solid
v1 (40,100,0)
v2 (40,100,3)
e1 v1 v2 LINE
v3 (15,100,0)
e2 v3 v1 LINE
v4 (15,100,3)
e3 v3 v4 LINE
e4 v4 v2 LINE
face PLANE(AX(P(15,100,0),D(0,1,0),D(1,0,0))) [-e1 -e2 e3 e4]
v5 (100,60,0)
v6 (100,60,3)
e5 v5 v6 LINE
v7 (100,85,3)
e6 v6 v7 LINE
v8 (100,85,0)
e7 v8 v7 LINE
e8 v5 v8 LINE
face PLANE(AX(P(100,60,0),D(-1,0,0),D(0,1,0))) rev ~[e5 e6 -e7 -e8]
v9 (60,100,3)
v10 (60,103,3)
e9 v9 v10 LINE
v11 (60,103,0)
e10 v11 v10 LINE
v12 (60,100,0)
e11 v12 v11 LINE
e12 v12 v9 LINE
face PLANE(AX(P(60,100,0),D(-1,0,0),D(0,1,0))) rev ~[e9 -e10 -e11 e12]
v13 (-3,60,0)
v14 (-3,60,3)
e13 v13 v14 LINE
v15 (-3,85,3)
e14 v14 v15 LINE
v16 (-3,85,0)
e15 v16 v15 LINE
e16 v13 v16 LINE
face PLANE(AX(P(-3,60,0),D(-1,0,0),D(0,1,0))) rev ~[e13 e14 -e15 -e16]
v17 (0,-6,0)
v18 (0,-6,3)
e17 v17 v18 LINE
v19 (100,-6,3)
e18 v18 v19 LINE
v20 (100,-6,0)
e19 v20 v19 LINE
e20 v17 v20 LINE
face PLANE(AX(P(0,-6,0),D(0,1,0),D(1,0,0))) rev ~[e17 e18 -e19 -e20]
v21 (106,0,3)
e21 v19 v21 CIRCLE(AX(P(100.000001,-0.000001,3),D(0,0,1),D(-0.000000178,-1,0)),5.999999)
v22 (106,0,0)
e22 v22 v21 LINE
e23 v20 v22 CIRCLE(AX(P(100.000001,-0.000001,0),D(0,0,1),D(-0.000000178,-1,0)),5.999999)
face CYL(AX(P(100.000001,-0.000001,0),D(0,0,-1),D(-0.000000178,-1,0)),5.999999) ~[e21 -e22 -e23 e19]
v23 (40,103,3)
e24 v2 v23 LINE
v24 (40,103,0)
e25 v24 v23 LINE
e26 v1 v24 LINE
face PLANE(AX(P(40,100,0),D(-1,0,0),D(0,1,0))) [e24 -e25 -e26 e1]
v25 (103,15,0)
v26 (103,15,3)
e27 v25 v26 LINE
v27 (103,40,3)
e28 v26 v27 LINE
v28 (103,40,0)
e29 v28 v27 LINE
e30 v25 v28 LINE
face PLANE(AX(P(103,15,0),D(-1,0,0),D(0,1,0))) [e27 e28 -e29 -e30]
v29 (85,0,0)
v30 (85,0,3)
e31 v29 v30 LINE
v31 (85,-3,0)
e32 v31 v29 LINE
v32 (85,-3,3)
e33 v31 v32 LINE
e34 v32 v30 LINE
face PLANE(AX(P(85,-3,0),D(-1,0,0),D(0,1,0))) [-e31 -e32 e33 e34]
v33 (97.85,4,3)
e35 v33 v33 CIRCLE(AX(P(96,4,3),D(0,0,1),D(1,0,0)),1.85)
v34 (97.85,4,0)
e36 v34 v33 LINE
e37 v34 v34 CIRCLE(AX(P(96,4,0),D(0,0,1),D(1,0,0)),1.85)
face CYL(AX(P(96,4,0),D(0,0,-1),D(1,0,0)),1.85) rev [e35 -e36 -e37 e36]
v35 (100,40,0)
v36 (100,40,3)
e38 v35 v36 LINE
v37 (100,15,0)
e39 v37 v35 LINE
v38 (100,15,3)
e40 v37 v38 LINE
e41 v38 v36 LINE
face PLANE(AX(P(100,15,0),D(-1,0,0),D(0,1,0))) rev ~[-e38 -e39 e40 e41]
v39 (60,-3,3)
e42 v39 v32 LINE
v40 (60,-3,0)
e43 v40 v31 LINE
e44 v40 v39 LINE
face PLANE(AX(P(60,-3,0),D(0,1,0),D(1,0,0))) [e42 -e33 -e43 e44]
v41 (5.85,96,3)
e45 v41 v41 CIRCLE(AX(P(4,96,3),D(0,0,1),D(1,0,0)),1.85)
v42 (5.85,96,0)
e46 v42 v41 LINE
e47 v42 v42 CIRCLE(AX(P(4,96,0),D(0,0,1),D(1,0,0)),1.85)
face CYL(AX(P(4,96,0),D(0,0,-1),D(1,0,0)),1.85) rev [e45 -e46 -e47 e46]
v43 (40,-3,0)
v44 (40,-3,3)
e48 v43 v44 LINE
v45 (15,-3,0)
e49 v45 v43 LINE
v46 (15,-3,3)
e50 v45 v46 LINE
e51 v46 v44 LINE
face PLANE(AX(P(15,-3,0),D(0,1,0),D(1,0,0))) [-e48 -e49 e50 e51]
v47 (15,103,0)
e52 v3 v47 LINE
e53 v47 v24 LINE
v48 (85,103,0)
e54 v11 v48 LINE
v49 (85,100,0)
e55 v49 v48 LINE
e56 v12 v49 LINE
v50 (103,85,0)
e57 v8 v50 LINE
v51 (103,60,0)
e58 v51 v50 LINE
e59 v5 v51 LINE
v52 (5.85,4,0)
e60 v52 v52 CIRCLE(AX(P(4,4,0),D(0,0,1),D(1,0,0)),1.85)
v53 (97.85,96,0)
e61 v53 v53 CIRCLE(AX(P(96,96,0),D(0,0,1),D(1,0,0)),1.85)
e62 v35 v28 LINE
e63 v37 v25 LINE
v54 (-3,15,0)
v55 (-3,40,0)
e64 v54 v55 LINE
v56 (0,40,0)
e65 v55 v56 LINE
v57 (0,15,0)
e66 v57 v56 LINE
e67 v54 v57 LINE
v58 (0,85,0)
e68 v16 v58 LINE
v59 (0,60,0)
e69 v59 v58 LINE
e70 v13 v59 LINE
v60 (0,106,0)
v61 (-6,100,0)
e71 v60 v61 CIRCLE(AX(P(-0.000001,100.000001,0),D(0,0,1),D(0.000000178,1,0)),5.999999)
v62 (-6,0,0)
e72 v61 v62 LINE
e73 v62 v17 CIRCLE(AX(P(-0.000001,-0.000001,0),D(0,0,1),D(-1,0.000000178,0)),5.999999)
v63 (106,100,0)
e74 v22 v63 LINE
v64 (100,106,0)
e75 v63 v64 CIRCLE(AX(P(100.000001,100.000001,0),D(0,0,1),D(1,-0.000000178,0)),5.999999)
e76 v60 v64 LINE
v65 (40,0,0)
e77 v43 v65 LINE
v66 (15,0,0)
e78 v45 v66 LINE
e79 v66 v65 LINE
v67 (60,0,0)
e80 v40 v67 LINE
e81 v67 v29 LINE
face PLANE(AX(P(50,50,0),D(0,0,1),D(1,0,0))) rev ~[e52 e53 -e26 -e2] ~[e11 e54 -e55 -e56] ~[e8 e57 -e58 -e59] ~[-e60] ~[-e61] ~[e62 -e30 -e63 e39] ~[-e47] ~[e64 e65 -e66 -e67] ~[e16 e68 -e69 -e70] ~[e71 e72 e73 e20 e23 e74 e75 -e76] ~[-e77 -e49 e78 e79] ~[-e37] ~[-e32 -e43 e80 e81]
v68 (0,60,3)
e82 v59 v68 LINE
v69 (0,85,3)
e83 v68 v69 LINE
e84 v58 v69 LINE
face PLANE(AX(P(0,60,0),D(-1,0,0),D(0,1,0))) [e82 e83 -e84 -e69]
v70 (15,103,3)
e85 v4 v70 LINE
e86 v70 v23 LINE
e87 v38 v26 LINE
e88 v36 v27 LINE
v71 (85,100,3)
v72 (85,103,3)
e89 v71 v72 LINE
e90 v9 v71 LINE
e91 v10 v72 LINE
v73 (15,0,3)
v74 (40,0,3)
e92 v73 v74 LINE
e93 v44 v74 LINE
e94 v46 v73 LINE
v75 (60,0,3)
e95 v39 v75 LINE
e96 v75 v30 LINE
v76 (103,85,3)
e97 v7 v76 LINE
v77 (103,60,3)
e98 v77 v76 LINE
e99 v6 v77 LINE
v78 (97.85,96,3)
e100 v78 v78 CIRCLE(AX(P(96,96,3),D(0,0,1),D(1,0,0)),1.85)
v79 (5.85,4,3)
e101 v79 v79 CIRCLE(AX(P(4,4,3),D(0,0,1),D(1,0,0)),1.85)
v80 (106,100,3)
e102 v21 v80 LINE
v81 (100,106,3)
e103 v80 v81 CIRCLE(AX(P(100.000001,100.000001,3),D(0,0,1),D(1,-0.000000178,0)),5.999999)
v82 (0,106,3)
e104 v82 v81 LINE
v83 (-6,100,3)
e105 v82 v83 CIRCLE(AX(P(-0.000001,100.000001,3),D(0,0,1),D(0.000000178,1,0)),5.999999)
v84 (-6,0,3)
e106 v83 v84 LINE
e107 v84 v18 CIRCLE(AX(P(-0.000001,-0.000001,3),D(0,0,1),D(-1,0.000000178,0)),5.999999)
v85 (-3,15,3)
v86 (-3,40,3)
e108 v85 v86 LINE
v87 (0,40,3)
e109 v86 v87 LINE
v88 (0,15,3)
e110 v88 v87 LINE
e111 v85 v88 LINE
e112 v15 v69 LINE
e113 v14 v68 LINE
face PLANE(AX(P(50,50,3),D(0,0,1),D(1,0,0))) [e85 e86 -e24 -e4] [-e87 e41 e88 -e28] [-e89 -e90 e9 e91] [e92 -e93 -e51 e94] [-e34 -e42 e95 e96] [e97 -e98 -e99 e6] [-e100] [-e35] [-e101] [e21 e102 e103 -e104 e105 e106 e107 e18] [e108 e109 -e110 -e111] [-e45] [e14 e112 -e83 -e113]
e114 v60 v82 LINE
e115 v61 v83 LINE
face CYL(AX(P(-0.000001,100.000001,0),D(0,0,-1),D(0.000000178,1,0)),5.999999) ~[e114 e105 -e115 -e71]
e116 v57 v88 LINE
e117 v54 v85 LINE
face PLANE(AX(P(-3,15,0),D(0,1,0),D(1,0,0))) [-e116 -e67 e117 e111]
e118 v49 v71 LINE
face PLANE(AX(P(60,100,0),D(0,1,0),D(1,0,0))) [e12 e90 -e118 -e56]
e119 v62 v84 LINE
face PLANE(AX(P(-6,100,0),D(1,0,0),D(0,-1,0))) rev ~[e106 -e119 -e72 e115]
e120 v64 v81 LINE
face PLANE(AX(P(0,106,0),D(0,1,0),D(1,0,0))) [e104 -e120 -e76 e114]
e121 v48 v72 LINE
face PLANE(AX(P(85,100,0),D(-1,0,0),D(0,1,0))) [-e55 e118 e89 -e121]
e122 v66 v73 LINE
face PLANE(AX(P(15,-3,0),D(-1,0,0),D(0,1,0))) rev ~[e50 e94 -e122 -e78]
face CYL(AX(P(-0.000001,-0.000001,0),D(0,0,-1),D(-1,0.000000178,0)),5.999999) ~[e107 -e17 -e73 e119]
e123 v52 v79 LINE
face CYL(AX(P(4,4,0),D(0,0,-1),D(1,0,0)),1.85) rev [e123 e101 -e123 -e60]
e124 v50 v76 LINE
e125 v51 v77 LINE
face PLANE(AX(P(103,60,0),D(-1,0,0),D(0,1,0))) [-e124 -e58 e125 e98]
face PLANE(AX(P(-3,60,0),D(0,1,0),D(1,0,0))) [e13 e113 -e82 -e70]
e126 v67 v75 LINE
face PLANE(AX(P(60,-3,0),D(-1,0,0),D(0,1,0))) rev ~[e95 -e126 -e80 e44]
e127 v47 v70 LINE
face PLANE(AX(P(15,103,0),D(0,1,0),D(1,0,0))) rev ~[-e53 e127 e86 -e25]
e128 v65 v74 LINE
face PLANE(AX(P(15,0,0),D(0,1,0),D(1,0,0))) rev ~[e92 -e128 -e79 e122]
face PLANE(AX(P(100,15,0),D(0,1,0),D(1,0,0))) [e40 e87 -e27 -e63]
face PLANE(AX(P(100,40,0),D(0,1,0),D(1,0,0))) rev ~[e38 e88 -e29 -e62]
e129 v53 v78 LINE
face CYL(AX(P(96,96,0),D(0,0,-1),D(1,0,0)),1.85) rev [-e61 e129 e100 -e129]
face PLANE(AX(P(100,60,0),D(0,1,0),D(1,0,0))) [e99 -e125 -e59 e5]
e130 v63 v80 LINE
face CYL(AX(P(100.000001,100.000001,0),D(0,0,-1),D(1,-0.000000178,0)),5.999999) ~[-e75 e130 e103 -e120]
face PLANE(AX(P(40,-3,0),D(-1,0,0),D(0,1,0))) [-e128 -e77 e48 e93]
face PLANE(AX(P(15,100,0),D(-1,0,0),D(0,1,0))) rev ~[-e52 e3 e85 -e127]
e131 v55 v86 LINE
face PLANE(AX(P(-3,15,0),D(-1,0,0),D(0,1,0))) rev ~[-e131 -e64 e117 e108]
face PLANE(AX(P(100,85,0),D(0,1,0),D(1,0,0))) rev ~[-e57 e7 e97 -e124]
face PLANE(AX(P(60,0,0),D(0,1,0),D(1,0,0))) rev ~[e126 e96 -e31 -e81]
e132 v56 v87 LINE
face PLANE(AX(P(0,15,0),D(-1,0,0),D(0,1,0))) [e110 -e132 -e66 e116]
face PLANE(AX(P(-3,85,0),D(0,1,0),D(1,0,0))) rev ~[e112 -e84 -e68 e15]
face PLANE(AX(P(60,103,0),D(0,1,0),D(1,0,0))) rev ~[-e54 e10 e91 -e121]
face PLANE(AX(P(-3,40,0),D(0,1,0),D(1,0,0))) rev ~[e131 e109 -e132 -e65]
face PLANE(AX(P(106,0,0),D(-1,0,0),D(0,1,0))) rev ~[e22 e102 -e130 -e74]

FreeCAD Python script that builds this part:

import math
import FreeCAD as App
import Part
import Sketcher
from FreeCAD import Vector


def add_polygon(sketch, points):
    """Adds a closed chain of lines whose ends are joined by coincident constraints."""
    first, n = sketch.GeometryCount, len(points)
    for a, b in zip(points, points[1:] + points[:1]):
        sketch.addGeometry(Part.LineSegment(App.Vector(*a, 0), App.Vector(*b, 0)), False)
    for i in range(n):
        sketch.addConstraint(Sketcher.Constraint("Coincident", first + i, 2, first + (i + 1) % n, 1))

doc = App.newDocument("Part")
body = doc.addObject("PartDesign::Body", "Body")

# Sketch on XY plane
sketch1 = body.newObject("Sketcher::SketchObject", "Sketch")
sketch1.AttachmentSupport = (doc.getObject("XY_Plane"), [""])
sketch1.MapMode = "FlatFace"
sketch1.addGeometry(Part.ArcOfCircle(Part.Circle(Vector(-0.000001, 100.000001, 0), Vector(0, 0, 1), 5.999999), math.radians(89.99999), math.radians(180.00001)), False)  # 0
sketch1.addGeometry(Part.LineSegment(Vector(-6, 100, 0), Vector(-6, 0, 0)), False)  # 1
sketch1.addGeometry(Part.ArcOfCircle(Part.Circle(Vector(-0.000001, -0.000001, 0), Vector(0, 0, 1), 5.999999), math.radians(179.99999), math.radians(270.00001)), False)  # 2
sketch1.addGeometry(Part.LineSegment(Vector(0, -6, 0), Vector(100, -6, 0)), False)  # 3
sketch1.addGeometry(Part.ArcOfCircle(Part.Circle(Vector(100.000001, -0.000001, 0), Vector(0, 0, 1), 5.999999), math.radians(-90.00001), math.radians(0.00001)), False)  # 4
sketch1.addGeometry(Part.LineSegment(Vector(106, 0, 0), Vector(106, 100, 0)), False)  # 5
sketch1.addGeometry(Part.ArcOfCircle(Part.Circle(Vector(100.000001, 100.000001, 0), Vector(0, 0, 1), 5.999999), math.radians(-0.00001), math.radians(90.00001)), False)  # 6
sketch1.addGeometry(Part.LineSegment(Vector(100, 106, 0), Vector(0, 106, 0)), False)  # 7
sketch1.addGeometry(Part.Circle(Vector(4, 4, 0), Vector(0, 0, 1), 1.85), False)  # 8
add_polygon(sketch1, [(40, -3), (15, -3), (15, 0), (40, 0)])  # lines 9-12
add_polygon(sketch1, [(0, 15), (-3, 15), (-3, 40), (0, 40)])  # lines 13-16
add_polygon(sketch1, [(85, -3), (60, -3), (60, 0), (85, 0)])  # lines 17-20
sketch1.addGeometry(Part.Circle(Vector(96, 4, 0), Vector(0, 0, 1), 1.85), False)  # 21
add_polygon(sketch1, [(103, 15), (100, 15), (100, 40), (103, 40)])  # lines 22-25
add_polygon(sketch1, [(0, 60), (-3, 60), (-3, 85), (0, 85)])  # lines 26-29
sketch1.addGeometry(Part.Circle(Vector(4, 96, 0), Vector(0, 0, 1), 1.85), False)  # 30
add_polygon(sketch1, [(40, 100), (15, 100), (15, 103), (40, 103)])  # lines 31-34
add_polygon(sketch1, [(103, 60), (100, 60), (100, 85), (103, 85)])  # lines 35-38
add_polygon(sketch1, [(85, 100), (60, 100), (60, 103), (85, 103)])  # lines 39-42
sketch1.addGeometry(Part.Circle(Vector(96, 96, 0), Vector(0, 0, 1), 1.85), False)  # 43
sketch1.addConstraint(Sketcher.Constraint("Tangent", 0, 2, 1, 1))
sketch1.addConstraint(Sketcher.Constraint("Tangent", 1, 2, 2, 1))
sketch1.addConstraint(Sketcher.Constraint("Tangent", 2, 2, 3, 1))
sketch1.addConstraint(Sketcher.Constraint("Tangent", 3, 2, 4, 1))
sketch1.addConstraint(Sketcher.Constraint("Tangent", 4, 2, 5, 1))
sketch1.addConstraint(Sketcher.Constraint("Tangent", 5, 2, 6, 1))
sketch1.addConstraint(Sketcher.Constraint("Tangent", 6, 2, 7, 1))
sketch1.addConstraint(Sketcher.Constraint("Tangent", 7, 2, 0, 1))
sketch1.addConstraint(Sketcher.Constraint("Vertical", 1))
sketch1.addConstraint(Sketcher.Constraint("Horizontal", 3))
sketch1.addConstraint(Sketcher.Constraint("Vertical", 5))
sketch1.addConstraint(Sketcher.Constraint("Horizontal", 7))
sketch1.addConstraint(Sketcher.Constraint("Horizontal", 9))
sketch1.addConstraint(Sketcher.Constraint("Vertical", 10))
sketch1.addConstraint(Sketcher.Constraint("Horizontal", 11))
sketch1.addConstraint(Sketcher.Constraint("Vertical", 12))
sketch1.addConstraint(Sketcher.Constraint("Horizontal", 13))
sketch1.addConstraint(Sketcher.Constraint("Vertical", 14))
sketch1.addConstraint(Sketcher.Constraint("Horizontal", 15))
sketch1.addConstraint(Sketcher.Constraint("Vertical", 16))
sketch1.addConstraint(Sketcher.Constraint("Horizontal", 17))
sketch1.addConstraint(Sketcher.Constraint("Vertical", 18))
sketch1.addConstraint(Sketcher.Constraint("Horizontal", 19))
sketch1.addConstraint(Sketcher.Constraint("Vertical", 20))
sketch1.addConstraint(Sketcher.Constraint("Horizontal", 22))
sketch1.addConstraint(Sketcher.Constraint("Vertical", 23))
sketch1.addConstraint(Sketcher.Constraint("Horizontal", 24))
sketch1.addConstraint(Sketcher.Constraint("Vertical", 25))
sketch1.addConstraint(Sketcher.Constraint("Horizontal", 26))
sketch1.addConstraint(Sketcher.Constraint("Vertical", 27))
sketch1.addConstraint(Sketcher.Constraint("Horizontal", 28))
sketch1.addConstraint(Sketcher.Constraint("Vertical", 29))
sketch1.addConstraint(Sketcher.Constraint("Horizontal", 31))
sketch1.addConstraint(Sketcher.Constraint("Vertical", 32))
sketch1.addConstraint(Sketcher.Constraint("Horizontal", 33))
sketch1.addConstraint(Sketcher.Constraint("Vertical", 34))
sketch1.addConstraint(Sketcher.Constraint("Horizontal", 35))
sketch1.addConstraint(Sketcher.Constraint("Vertical", 36))
sketch1.addConstraint(Sketcher.Constraint("Horizontal", 37))
sketch1.addConstraint(Sketcher.Constraint("Vertical", 38))
sketch1.addConstraint(Sketcher.Constraint("Horizontal", 39))
sketch1.addConstraint(Sketcher.Constraint("Vertical", 40))
sketch1.addConstraint(Sketcher.Constraint("Horizontal", 41))
sketch1.addConstraint(Sketcher.Constraint("Vertical", 42))
sketch1.addConstraint(Sketcher.Constraint("Coincident", 2, 3, -1, 1))
sketch1.addConstraint(Sketcher.Constraint("Equal", 0, 2))
sketch1.addConstraint(Sketcher.Constraint("Equal", 2, 4))
sketch1.addConstraint(Sketcher.Constraint("Equal", 4, 6))
sketch1.addConstraint(Sketcher.Constraint("Equal", 8, 21))
sketch1.addConstraint(Sketcher.Constraint("Equal", 21, 30))
sketch1.addConstraint(Sketcher.Constraint("Equal", 30, 43))
sketch1.addConstraint(Sketcher.Constraint("PointOnObject", 10, 2, -1))
sketch1.addConstraint(Sketcher.Constraint("PointOnObject", 15, 2, -2))
sketch1.addConstraint(Sketcher.Constraint("PointOnObject", 18, 2, -1))
sketch1.addConstraint(Sketcher.Constraint("PointOnObject", 28, 2, -2))
sketch1.addConstraint(Sketcher.Constraint("Horizontal", 8, 3, 21, 3))
sketch1.addConstraint(Sketcher.Constraint("Horizontal", 30, 3, 43, 3))
sketch1.addConstraint(Sketcher.Constraint("Horizontal", 12, 2, 17, 2))
sketch1.addConstraint(Sketcher.Constraint("Horizontal", 16, 2, 22, 2))
sketch1.addConstraint(Sketcher.Constraint("Horizontal", 15, 2, 23, 2))
sketch1.addConstraint(Sketcher.Constraint("Horizontal", 5, 2, 31, 2))
sketch1.addConstraint(Sketcher.Constraint("Horizontal", 29, 2, 35, 2))
sketch1.addConstraint(Sketcher.Constraint("Horizontal", 28, 2, 36, 2))
sketch1.addConstraint(Sketcher.Constraint("Horizontal", 34, 2, 39, 2))
sketch1.addConstraint(Sketcher.Constraint("Horizontal", 33, 2, 40, 2))
sketch1.addConstraint(Sketcher.Constraint("Vertical", 8, 3, 30, 3))
sketch1.addConstraint(Sketcher.Constraint("Vertical", 21, 3, 43, 3))
sketch1.addConstraint(Sketcher.Constraint("Vertical", 6, 2, 22, 2))
sketch1.addConstraint(Sketcher.Constraint("Vertical", 14, 2, 26, 2))
sketch1.addConstraint(Sketcher.Constraint("Vertical", 10, 2, 31, 2))
sketch1.addConstraint(Sketcher.Constraint("Vertical", 12, 2, 33, 2))
sketch1.addConstraint(Sketcher.Constraint("Vertical", 23, 2, 35, 2))
sketch1.addConstraint(Sketcher.Constraint("Vertical", 25, 2, 37, 2))
sketch1.addConstraint(Sketcher.Constraint("Vertical", 18, 2, 39, 2))
sketch1.addConstraint(Sketcher.Constraint("Vertical", 20, 2, 41, 2))
sketch1.addConstraint(Sketcher.Constraint("Equal", 11, 17))
sketch1.addConstraint(Sketcher.Constraint("Equal", 15, 22))
sketch1.addConstraint(Sketcher.Constraint("Equal", 7, 1))
sketch1.addConstraint(Sketcher.Constraint("Equal", 37, 10))
sketch1.addConstraint(Sketcher.Constraint("Equal", 41, 14))
sketch1.addConstraint(Sketcher.Constraint("Equal", 25, 27))
sketch1.addConstraint(Sketcher.Constraint("Equal", 20, 32))
sketch1.addConstraint(Sketcher.Constraint("Radius", 0, 5.999999))
sketch1.addConstraint(Sketcher.Constraint("Diameter", 8, 3.7))
sketch1.addConstraint(Sketcher.Constraint("DistanceX", 3, 1, 3, 2, 100.0))
sketch1.addConstraint(Sketcher.Constraint("DistanceX", 9, 2, 9, 1, 25.0))
sketch1.addConstraint(Sketcher.Constraint("DistanceX", 13, 2, 13, 1, 3.0))
sketch1.addConstraint(Sketcher.Constraint("DistanceX", -1, 1, 8, 3, 4.0))
sketch1.addConstraint(Sketcher.Constraint("DistanceY", -1, 1, 8, 3, 4.0))
sketch1.addConstraint(Sketcher.Constraint("DistanceX", -1, 1, 21, 3, 96.0))
sketch1.addConstraint(Sketcher.Constraint("DistanceY", -1, 1, 30, 3, 96.0))
sketch1.addConstraint(Sketcher.Constraint("DistanceX", -1, 1, 9, 2, 15.0))
sketch1.addConstraint(Sketcher.Constraint("DistanceY", -1, 1, 13, 2, 15.0))
sketch1.addConstraint(Sketcher.Constraint("DistanceX", -1, 1, 17, 2, 60.0))
sketch1.addConstraint(Sketcher.Constraint("DistanceY", -1, 1, 26, 2, 60.0))
pad1 = body.newObject("PartDesign::Pad", "Pad")
pad1.Profile = sketch1
pad1.Length = 3

doc.recompute()
